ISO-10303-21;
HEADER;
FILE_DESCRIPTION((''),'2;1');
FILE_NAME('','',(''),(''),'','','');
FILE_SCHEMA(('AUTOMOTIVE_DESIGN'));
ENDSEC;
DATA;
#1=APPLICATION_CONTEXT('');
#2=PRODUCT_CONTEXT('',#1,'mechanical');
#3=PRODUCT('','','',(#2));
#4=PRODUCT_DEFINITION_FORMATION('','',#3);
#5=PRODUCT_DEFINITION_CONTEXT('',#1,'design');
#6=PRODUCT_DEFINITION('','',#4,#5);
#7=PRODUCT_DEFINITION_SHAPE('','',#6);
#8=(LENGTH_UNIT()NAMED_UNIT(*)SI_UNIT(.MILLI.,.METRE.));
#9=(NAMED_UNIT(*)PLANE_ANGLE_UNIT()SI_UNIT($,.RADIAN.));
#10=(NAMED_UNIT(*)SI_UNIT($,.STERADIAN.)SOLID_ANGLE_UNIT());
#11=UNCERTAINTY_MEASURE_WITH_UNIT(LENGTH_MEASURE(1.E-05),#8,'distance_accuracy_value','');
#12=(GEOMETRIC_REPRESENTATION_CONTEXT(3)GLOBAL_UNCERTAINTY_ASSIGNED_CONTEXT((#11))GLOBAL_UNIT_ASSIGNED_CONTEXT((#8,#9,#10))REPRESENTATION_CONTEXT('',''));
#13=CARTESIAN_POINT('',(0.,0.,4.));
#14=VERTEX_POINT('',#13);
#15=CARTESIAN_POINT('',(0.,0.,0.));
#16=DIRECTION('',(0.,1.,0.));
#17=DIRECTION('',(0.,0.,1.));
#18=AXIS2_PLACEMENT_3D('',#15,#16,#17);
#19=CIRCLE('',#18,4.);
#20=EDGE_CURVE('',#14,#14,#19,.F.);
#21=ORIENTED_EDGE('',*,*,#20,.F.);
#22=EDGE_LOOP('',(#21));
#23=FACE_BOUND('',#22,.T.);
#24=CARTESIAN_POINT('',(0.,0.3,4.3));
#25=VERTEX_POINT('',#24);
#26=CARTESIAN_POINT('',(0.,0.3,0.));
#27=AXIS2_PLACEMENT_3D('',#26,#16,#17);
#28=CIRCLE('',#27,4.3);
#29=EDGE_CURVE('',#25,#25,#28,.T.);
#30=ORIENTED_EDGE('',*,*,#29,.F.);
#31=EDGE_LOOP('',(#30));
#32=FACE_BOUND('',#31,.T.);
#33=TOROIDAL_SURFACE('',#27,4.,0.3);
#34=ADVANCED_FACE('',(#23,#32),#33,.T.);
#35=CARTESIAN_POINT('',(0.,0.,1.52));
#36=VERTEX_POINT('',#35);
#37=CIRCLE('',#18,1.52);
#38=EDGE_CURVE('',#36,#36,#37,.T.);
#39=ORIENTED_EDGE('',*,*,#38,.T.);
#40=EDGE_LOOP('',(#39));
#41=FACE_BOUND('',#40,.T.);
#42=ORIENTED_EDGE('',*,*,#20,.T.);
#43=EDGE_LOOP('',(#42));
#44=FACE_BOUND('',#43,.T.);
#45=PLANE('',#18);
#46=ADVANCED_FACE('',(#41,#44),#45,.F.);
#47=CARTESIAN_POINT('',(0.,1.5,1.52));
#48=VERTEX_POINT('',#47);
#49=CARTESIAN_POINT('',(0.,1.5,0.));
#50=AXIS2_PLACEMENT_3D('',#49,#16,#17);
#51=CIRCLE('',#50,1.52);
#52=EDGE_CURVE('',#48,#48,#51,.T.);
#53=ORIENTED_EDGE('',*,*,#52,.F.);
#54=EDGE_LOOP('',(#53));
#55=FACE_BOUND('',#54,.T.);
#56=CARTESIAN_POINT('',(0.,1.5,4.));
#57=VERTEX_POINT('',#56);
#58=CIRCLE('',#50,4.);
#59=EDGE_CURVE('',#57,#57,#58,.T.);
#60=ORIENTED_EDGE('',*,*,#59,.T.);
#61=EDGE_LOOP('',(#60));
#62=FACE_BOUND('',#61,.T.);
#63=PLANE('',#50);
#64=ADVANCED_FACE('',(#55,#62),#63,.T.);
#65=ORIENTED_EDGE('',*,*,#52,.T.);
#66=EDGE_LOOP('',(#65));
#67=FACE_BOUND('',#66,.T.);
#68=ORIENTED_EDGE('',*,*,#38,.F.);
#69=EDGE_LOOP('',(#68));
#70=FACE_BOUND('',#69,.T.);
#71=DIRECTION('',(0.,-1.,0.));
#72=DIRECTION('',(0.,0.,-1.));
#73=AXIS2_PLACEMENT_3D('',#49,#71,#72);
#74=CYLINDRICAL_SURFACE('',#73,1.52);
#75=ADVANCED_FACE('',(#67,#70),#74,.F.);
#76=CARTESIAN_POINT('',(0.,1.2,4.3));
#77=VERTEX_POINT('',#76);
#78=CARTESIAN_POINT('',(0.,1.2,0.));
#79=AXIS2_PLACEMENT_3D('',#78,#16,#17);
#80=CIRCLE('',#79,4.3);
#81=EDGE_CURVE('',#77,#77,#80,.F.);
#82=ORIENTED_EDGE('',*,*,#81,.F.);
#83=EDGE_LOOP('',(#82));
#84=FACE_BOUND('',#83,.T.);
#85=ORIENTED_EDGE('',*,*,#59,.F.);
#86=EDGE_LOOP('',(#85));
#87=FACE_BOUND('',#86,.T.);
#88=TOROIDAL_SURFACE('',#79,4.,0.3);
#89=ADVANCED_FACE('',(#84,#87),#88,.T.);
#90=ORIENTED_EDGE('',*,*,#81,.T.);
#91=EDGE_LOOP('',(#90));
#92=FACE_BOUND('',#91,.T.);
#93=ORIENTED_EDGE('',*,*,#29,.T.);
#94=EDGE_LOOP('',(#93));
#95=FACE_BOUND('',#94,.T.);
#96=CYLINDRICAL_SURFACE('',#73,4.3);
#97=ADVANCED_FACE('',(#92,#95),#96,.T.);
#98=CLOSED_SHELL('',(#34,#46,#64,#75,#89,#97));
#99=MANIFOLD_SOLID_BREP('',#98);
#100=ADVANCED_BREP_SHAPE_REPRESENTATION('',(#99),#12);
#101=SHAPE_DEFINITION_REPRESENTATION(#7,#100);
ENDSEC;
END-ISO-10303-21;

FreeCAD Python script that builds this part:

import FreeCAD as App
import Part
import Sketcher
Q = App.Units.Quantity


def edges_at(feature, points):
    """Names of the edges that pass closest to the given points."""
    edges = feature.Shape.Edges
    near = lambda p: min(range(len(edges)), key=lambda i: edges[i].distToShape(Part.Vertex(*p))[0])
    return sorted({f"Edge{near(p) + 1}" for p in points})

doc = App.newDocument("Part")
body = doc.addObject("PartDesign::Body", "Body")

# Sketch on XZ plane
sketch1 = body.newObject("Sketcher::SketchObject", "Sketch")
sketch1.AttachmentSupport = (doc.getObject("XZ_Plane"), [""])
sketch1.MapMode = "FlatFace"
sketch1.addGeometry(Part.Circle(App.Vector(0, 0, 0), App.Vector(0, 0, 1), 4.3), False)
sketch1.addGeometry(Part.Circle(App.Vector(0, 0, 0), App.Vector(0, 0, 1), 1.52), False)
sketch1.addConstraint(Sketcher.Constraint("Coincident", 0, 3, -1, 1))
sketch1.addConstraint(Sketcher.Constraint("Coincident", 1, 3, -1, 1))
sketch1.addConstraint(Sketcher.Constraint("Diameter", 0, Q("8.6 mm")))
sketch1.addConstraint(Sketcher.Constraint("Diameter", 1, Q("3.04 mm")))
pad1 = body.newObject("PartDesign::Pad", "Pad")
pad1.Profile = sketch1
pad1.Length = 1.5
pad1.Reversed = True
doc.recompute()

fillet = body.newObject("PartDesign::Fillet", "Fillet")
fillet.Base = (pad1, edges_at(pad1, [(0, 0, -4.3), (0, 1.5, -4.3)]))
fillet.Radius = 0.3

doc.recompute()
